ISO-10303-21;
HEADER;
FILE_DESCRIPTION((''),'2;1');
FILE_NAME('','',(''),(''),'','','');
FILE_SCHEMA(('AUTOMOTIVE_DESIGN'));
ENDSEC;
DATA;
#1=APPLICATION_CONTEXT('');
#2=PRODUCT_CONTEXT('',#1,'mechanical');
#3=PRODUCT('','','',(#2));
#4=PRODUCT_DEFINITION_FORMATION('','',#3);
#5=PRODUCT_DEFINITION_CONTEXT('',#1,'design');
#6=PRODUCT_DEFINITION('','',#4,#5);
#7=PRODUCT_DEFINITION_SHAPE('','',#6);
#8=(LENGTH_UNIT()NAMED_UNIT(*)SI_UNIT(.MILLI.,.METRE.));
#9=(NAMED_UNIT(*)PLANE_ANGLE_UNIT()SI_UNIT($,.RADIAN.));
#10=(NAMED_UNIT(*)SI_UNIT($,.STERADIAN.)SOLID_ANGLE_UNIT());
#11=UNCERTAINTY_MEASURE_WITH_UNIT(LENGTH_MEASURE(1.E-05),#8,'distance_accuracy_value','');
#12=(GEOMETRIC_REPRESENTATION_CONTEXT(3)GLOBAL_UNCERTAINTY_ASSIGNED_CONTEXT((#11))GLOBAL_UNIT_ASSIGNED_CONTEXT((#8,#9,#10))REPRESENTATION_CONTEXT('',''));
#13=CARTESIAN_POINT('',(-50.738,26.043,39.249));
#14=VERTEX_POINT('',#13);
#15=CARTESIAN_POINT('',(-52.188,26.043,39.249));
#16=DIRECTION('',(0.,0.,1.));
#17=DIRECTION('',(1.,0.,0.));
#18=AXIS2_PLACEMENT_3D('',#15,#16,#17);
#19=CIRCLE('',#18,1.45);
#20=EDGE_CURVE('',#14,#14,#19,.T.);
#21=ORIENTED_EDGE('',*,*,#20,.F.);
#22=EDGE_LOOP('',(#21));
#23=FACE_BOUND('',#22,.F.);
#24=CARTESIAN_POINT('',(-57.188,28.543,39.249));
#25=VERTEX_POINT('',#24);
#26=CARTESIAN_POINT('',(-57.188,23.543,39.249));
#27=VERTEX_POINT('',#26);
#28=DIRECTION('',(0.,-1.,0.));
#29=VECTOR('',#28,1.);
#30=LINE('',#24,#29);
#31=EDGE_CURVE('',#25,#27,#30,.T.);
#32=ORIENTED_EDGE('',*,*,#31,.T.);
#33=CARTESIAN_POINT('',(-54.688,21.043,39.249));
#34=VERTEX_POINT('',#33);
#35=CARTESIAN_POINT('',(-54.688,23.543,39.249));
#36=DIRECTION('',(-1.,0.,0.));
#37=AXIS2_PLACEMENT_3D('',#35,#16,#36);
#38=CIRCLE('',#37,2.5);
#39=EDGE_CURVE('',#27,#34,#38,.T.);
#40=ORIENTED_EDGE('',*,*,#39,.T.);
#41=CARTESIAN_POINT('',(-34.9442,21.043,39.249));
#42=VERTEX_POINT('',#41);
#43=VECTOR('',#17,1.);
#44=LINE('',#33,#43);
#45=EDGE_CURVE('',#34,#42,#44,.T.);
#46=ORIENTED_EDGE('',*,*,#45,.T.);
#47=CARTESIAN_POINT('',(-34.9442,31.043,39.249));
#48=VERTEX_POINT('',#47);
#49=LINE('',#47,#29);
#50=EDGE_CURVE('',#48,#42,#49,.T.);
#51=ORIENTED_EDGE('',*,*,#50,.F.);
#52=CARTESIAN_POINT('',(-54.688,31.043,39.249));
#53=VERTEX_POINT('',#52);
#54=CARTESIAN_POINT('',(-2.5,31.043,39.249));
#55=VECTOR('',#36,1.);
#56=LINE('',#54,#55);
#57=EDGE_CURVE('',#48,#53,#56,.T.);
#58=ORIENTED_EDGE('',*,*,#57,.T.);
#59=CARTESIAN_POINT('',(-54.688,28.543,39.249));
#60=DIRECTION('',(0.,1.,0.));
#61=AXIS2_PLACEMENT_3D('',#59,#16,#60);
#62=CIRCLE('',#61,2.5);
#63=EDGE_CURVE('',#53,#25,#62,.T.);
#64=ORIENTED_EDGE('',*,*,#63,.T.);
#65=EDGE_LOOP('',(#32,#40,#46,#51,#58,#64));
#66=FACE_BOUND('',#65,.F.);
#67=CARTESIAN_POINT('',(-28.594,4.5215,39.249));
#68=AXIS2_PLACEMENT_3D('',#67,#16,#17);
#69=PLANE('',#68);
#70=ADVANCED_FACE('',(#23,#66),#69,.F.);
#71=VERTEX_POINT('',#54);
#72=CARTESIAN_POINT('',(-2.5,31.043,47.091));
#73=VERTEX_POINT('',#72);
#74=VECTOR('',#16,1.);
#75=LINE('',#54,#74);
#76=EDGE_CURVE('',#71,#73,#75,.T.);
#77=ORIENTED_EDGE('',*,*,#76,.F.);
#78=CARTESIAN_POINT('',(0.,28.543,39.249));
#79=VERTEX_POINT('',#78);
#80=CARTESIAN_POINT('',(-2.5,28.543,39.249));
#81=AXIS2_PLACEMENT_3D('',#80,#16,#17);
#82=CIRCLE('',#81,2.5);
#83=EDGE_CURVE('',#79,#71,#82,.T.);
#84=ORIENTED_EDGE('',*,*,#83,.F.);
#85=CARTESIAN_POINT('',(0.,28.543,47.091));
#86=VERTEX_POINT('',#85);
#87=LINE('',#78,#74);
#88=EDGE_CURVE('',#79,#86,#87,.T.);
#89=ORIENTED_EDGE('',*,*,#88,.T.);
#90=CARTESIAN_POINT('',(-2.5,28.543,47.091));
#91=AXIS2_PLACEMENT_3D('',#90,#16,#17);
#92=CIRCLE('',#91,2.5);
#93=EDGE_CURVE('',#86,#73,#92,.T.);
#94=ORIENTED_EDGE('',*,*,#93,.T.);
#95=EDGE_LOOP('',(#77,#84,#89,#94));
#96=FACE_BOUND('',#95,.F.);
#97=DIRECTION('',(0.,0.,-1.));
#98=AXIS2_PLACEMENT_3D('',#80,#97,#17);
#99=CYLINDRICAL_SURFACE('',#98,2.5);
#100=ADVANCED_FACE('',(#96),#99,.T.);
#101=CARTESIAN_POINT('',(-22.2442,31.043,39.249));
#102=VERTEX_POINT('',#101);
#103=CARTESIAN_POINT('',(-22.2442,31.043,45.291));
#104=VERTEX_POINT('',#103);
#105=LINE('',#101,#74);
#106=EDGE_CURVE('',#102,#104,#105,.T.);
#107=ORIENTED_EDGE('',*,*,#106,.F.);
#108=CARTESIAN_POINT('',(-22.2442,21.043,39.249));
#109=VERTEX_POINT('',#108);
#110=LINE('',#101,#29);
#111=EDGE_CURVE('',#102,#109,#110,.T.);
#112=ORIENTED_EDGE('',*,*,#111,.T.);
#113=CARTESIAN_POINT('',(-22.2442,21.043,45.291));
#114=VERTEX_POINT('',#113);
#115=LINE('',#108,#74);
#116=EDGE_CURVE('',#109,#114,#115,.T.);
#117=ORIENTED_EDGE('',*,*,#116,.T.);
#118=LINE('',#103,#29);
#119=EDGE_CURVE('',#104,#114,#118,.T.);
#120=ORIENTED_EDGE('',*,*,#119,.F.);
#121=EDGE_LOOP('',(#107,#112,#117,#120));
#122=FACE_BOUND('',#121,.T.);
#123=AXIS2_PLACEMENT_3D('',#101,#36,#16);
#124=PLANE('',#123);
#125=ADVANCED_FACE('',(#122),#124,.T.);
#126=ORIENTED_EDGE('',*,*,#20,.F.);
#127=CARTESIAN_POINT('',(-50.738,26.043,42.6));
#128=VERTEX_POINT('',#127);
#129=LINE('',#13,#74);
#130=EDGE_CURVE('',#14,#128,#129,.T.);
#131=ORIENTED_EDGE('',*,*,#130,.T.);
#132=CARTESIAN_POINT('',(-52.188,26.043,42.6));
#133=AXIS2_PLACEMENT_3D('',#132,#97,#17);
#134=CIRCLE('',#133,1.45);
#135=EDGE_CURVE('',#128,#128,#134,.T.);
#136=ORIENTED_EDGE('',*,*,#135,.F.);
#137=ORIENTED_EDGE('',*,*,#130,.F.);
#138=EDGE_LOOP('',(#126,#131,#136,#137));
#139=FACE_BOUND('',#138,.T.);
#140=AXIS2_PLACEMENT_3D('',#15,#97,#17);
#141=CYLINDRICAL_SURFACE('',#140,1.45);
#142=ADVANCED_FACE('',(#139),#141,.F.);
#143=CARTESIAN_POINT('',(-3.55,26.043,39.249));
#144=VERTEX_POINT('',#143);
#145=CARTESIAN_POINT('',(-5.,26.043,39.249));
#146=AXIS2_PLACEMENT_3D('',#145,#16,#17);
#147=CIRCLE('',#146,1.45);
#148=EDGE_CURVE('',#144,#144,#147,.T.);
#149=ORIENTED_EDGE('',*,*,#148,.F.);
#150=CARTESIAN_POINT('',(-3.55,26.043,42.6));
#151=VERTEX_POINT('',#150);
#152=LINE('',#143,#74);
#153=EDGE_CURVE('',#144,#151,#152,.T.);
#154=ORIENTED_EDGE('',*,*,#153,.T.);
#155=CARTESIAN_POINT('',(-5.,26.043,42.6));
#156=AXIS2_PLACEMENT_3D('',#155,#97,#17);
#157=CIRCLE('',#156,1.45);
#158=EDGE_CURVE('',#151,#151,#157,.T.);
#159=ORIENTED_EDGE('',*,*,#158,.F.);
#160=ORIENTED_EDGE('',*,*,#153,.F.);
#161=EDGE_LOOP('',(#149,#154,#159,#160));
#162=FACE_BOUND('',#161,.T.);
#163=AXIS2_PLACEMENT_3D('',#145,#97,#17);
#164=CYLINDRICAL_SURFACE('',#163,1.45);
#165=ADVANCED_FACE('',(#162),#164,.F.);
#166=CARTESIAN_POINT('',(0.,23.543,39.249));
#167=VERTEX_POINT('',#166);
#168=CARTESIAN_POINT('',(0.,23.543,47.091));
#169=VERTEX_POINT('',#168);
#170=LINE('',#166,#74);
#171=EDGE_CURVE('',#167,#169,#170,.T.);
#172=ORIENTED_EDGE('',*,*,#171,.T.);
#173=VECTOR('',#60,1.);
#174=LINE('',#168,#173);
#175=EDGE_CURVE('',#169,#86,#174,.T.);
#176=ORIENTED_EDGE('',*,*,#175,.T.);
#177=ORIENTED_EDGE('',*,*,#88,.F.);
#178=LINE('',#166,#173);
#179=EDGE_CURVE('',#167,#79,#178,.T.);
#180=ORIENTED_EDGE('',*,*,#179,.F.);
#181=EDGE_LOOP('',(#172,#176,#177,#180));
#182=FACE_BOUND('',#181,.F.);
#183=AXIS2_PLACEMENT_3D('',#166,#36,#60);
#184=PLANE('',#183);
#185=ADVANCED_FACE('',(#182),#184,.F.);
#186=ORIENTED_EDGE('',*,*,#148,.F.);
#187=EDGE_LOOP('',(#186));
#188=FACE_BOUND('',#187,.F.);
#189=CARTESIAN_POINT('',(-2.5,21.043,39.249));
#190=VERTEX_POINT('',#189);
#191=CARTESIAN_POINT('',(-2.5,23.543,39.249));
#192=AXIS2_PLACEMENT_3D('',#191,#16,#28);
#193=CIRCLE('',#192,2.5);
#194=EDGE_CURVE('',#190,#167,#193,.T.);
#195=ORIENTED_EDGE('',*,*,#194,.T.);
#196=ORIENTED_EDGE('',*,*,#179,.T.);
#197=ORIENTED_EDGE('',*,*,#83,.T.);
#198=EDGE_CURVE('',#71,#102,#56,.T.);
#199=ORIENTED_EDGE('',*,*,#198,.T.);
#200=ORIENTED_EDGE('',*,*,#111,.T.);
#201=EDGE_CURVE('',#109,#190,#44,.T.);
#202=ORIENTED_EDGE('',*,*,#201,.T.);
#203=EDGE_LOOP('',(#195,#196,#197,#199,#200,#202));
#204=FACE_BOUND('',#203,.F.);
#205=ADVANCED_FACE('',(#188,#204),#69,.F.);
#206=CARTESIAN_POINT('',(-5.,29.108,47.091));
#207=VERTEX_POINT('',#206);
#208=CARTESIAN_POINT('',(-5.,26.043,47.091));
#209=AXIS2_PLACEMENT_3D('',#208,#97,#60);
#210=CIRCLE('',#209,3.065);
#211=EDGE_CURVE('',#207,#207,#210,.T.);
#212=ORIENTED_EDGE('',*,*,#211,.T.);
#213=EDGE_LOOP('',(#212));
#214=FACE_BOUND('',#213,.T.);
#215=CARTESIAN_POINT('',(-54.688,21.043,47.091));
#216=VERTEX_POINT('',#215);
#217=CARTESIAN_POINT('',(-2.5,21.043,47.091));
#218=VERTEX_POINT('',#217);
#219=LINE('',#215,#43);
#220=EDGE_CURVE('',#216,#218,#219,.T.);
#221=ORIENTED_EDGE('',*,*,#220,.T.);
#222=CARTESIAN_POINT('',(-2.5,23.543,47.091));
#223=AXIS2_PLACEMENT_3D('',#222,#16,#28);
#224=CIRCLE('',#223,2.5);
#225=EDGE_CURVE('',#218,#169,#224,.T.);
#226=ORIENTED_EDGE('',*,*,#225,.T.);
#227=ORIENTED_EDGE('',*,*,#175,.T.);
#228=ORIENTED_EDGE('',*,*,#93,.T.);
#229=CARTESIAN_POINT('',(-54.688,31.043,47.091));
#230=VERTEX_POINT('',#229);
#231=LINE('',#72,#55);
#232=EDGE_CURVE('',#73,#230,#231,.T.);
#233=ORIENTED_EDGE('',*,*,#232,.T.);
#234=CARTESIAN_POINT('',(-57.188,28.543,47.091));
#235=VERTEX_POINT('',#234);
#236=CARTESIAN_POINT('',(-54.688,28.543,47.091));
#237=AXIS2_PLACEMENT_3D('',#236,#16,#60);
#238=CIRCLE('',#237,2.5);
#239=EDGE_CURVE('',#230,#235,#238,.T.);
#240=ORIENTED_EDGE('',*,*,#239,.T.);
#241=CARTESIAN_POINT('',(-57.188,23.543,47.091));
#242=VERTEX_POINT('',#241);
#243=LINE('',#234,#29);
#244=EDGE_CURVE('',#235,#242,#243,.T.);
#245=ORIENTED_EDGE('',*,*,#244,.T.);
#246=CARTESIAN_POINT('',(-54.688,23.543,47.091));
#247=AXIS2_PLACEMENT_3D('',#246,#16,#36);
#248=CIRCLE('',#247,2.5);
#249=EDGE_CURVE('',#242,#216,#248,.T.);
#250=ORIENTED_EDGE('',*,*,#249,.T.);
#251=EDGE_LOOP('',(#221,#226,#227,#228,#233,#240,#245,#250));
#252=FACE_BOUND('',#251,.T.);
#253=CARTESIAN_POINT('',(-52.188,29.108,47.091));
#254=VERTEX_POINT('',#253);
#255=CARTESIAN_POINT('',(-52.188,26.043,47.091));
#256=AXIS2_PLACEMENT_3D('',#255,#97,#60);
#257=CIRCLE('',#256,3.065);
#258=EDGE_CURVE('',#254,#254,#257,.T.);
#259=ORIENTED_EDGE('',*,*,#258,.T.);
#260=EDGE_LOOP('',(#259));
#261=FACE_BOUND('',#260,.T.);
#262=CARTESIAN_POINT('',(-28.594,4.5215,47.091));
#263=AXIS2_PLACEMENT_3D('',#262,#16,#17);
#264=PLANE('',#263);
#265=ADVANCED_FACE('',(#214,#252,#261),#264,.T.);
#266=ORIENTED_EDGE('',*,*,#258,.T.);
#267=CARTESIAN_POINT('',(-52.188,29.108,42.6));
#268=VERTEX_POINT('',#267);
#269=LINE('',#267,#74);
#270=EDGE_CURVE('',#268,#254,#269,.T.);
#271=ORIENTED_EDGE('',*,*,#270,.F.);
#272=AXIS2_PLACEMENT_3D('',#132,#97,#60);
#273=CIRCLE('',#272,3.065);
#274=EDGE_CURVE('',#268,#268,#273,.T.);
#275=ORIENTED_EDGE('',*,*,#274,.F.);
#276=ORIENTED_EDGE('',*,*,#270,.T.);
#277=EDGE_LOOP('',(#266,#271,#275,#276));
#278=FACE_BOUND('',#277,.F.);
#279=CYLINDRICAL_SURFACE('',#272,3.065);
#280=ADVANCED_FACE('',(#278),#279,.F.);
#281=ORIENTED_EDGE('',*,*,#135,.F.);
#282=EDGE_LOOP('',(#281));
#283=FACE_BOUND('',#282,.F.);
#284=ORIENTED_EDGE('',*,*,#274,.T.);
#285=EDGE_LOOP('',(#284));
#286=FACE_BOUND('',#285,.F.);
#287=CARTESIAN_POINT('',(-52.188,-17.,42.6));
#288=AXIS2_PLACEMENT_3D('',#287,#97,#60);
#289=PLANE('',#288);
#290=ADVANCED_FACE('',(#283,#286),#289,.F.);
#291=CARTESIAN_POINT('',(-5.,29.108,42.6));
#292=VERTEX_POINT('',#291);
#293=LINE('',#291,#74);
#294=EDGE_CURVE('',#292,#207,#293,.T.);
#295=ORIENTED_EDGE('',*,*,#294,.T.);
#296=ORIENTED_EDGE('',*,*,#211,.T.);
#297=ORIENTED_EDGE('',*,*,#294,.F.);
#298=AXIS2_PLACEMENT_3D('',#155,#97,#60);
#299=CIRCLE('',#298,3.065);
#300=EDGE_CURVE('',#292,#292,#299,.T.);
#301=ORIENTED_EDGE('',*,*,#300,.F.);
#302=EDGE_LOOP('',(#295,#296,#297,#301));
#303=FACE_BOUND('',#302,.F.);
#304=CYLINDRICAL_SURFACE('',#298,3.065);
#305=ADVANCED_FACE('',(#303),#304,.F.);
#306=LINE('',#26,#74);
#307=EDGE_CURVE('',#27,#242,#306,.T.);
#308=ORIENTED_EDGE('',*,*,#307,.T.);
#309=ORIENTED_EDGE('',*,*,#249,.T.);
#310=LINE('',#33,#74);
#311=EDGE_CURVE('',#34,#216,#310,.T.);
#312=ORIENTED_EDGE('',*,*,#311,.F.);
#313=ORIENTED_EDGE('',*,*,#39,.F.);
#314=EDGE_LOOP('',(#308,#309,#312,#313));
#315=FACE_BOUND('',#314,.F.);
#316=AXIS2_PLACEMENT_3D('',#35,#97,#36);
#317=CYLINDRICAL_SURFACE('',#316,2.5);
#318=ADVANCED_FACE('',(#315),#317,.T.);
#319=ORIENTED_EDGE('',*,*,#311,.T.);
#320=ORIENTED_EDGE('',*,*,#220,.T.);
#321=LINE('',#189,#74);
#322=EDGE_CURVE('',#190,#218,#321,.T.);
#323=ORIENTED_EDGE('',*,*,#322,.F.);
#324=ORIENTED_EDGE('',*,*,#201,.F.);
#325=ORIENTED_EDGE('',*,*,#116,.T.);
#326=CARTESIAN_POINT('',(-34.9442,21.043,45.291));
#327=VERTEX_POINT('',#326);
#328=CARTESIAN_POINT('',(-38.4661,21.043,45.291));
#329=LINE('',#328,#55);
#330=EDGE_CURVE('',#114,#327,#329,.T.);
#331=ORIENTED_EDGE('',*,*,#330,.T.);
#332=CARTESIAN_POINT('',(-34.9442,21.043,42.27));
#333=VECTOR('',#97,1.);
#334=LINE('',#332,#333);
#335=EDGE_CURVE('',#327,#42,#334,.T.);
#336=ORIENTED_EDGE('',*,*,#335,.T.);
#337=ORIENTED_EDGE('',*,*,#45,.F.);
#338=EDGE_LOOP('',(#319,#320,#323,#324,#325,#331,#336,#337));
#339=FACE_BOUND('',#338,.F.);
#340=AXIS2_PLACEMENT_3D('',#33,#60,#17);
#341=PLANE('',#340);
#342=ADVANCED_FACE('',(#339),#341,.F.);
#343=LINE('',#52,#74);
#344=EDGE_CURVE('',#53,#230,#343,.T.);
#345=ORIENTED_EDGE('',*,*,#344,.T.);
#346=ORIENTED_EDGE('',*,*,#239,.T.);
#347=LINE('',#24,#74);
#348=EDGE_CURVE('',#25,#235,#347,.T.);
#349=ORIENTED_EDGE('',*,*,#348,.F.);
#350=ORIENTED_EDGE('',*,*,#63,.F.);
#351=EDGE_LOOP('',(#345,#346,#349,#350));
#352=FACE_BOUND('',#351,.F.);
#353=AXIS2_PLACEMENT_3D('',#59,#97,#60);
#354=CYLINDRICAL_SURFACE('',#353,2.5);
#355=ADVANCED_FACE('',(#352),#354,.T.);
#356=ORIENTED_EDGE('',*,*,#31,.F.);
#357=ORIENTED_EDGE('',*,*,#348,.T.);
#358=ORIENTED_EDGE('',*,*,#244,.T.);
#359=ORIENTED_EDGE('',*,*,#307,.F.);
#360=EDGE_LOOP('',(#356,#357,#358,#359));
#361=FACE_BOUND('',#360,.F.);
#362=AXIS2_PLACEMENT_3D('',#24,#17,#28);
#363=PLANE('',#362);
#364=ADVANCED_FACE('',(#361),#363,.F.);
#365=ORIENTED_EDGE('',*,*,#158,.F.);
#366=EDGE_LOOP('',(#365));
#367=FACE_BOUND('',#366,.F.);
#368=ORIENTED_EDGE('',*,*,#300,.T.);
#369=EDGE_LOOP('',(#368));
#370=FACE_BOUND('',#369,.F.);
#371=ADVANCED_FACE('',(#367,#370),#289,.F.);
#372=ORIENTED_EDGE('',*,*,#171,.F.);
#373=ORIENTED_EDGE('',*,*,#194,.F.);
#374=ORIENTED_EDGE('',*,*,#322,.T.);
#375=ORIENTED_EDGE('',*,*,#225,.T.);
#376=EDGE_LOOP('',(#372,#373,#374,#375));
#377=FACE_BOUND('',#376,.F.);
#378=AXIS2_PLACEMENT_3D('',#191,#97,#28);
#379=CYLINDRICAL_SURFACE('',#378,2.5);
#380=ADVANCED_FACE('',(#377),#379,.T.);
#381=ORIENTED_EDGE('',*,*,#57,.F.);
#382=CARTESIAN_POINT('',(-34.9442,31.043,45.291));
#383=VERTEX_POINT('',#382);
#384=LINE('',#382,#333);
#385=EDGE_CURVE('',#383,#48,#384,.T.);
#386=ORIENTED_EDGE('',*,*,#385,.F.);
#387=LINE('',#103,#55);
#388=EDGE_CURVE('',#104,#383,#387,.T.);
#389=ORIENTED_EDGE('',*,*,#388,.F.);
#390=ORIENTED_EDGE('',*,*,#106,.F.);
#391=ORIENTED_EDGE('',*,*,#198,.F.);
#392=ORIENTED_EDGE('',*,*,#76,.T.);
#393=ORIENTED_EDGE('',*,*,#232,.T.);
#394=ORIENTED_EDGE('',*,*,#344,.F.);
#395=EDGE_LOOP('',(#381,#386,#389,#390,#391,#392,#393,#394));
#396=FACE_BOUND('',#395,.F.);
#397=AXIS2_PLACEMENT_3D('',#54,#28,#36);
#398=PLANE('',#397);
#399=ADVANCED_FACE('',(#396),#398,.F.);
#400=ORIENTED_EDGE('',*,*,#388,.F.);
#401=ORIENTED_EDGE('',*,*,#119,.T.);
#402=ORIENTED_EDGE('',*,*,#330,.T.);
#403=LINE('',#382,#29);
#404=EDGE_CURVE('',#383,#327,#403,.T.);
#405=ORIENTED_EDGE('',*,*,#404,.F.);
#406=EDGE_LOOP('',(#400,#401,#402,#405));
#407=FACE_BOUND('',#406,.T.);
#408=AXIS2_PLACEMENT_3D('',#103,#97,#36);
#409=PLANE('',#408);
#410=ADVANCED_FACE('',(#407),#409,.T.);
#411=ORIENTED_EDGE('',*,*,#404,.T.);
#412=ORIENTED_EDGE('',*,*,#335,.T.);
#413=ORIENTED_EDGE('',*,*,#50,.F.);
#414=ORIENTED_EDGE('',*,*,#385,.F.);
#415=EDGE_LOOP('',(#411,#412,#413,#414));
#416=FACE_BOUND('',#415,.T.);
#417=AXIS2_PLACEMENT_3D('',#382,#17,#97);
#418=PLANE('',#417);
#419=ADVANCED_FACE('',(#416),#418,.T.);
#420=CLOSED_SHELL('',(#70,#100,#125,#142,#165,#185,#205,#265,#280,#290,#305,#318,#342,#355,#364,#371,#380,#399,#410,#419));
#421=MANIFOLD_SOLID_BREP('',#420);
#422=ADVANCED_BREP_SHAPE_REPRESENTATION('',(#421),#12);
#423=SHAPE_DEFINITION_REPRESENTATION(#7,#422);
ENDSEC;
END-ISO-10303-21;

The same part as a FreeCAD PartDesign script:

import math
import FreeCAD as App
import Part
import Sketcher

V = App.Vector
Q = App.Units.Quantity

doc = App.newDocument("Part")
body = doc.addObject("PartDesign::Body", "Body")

sketch1 = body.newObject("Sketcher::SketchObject", "Sketch")
sketch1.AttachmentSupport = (doc.getObject("XY_Plane"), [""])
sketch1.MapMode = "FlatFace"
sketch1.AttachmentOffset = App.Placement(V(0, 0, 39.249), App.Rotation())
sketch1.addGeometry([
    Part.LineSegment(V(-2.5, 31, 0), V(-54.7, 31, 0)),
    Part.ArcOfCircle(Part.Circle(V(-54.7, 28.5, 0), V(0, 0, 1), 2.5), math.radians(90), math.radians(180)),
    Part.LineSegment(V(-57.2, 28.5, 0), V(-57.2, 23.5, 0)),
    Part.ArcOfCircle(Part.Circle(V(-54.7, 23.5, 0), V(0, 0, 1), 2.5), math.radians(180), math.radians(270)),
    Part.LineSegment(V(-54.7, 21, 0), V(-2.5, 21, 0)),
    Part.ArcOfCircle(Part.Circle(V(-2.5, 23.5, 0), V(0, 0, 1), 2.5), math.radians(-90), math.radians(0)),
    Part.LineSegment(V(0, 23.5, 0), V(0, 28.5, 0)),
    Part.ArcOfCircle(Part.Circle(V(-2.5, 28.5, 0), V(0, 0, 1), 2.5), math.radians(0), math.radians(90)),
    Part.Circle(V(-52.2, 26, 0), V(0, 0, 1), 1.4),
    Part.Circle(V(-5, 26, 0), V(0, 0, 1), 1.4),
], False)
sketch1.addConstraint([
    Sketcher.Constraint("Tangent", 0, 2, 1, 1),
    Sketcher.Constraint("Tangent", 1, 2, 2, 1),
    Sketcher.Constraint("Tangent", 2, 2, 3, 1),
    Sketcher.Constraint("Tangent", 3, 2, 4, 1),
    Sketcher.Constraint("Tangent", 4, 2, 5, 1),
    Sketcher.Constraint("Tangent", 5, 2, 6, 1),
    Sketcher.Constraint("Tangent", 6, 2, 7, 1),
    Sketcher.Constraint("Tangent", 7, 2, 0, 1),
    Sketcher.Constraint("Horizontal", 0),
    Sketcher.Constraint("Vertical", 2),
    Sketcher.Constraint("Horizontal", 4),
    Sketcher.Constraint("Vertical", 6),
    Sketcher.Constraint("Equal", 1, 3),
    Sketcher.Constraint("Equal", 3, 5),
    Sketcher.Constraint("Equal", 5, 7),
    Sketcher.Constraint("Equal", 8, 9),
    Sketcher.Constraint("PointOnObject", 5, 2, -2),
    Sketcher.Constraint("Horizontal", 8, 3, 9, 3),
    Sketcher.Constraint("Diameter", 8, Q("2.9 mm")),
    Sketcher.Constraint("Radius", 1, Q("2.5 mm")),
    Sketcher.Constraint("DistanceY", 2, 2, 2, 1, Q("5 mm")),
    Sketcher.Constraint("DistanceX", 9, 3, -1, 1, Q("5 mm")),
    Sketcher.Constraint("DistanceY", 8, 3, 0, 2, Q("5 mm")),
    Sketcher.Constraint("DistanceX", 1, 2, 8, 3, Q("5 mm")),
    Sketcher.Constraint("DistanceX", 0, 2, 0, 1, Q("52.188 mm")),
    Sketcher.Constraint("DistanceY", -1, 1, 1, 3, Q("28.543 mm")),
])
pad1 = body.newObject("PartDesign::Pad", "Pad")
pad1.Profile = sketch1
pad1.Length = 7.842

sketch2 = body.newObject("Sketcher::SketchObject", "Sketch001")
sketch2.AttachmentSupport = (doc.getObject("XZ_Plane"), [""])
sketch2.MapMode = "FlatFace"
sketch2.AttachmentOffset = App.Placement(V(0, 0, -31.043), App.Rotation())
sketch2.addGeometry([
    Part.LineSegment(V(-22, 45, 0), V(-22, 39, 0)),
    Part.LineSegment(V(-22, 39, 0), V(-35, 39, 0)),
    Part.LineSegment(V(-35, 39, 0), V(-35, 45, 0)),
    Part.LineSegment(V(-35, 45, 0), V(-22, 45, 0)),
], False)
sketch2.addConstraint([
    Sketcher.Constraint("Coincident", 0, 2, 1, 1),
    Sketcher.Constraint("Coincident", 1, 2, 2, 1),
    Sketcher.Constraint("Coincident", 2, 2, 3, 1),
    Sketcher.Constraint("Coincident", 3, 2, 0, 1),
    Sketcher.Constraint("Vertical", 0),
    Sketcher.Constraint("Horizontal", 1),
    Sketcher.Constraint("Vertical", 2),
    Sketcher.Constraint("Horizontal", 3),
    Sketcher.Constraint("DistanceX", 1, 2, 1, 1, Q("12.7 mm")),
    Sketcher.Constraint("DistanceY", 0, 2, 0, 1, Q("6.042 mm")),
    Sketcher.Constraint("DistanceY", -1, 1, 0, 2, Q("39.249 mm")),
    Sketcher.Constraint("DistanceX", 0, 2, -1, 1, Q("22.2442 mm")),
])
pocket1 = body.newObject("PartDesign::Pocket", "Pocket")
pocket1.Profile = sketch2
pocket1.Length = 12.908
pocket1.Reversed = True

sketch3 = body.newObject("Sketcher::SketchObject", "Sketch002")
sketch3.AttachmentSupport = (doc.getObject("XY_Plane"), [""])
sketch3.MapMode = "FlatFace"
sketch3.AttachmentOffset = App.Placement(V(0, 0, 42.6), App.Rotation())
sketch3.addGeometry([
    Part.Circle(V(-5, 26, 0), V(0, 0, 1), 3.1),
    Part.Circle(V(-52.2, 26, 0), V(0, 0, 1), 3.1),
], False)
sketch3.addConstraint([
    Sketcher.Constraint("Equal", 0, 1),
    Sketcher.Constraint("Horizontal", 0, 3, 1, 3),
    Sketcher.Constraint("Diameter", 0, Q("6.13 mm")),
    Sketcher.Constraint("DistanceX", 0, 3, -1, 1, Q("5 mm")),
    Sketcher.Constraint("DistanceY", -1, 1, 0, 3, Q("26.043 mm")),
    Sketcher.Constraint("DistanceX", 1, 3, -1, 1, Q("52.188 mm")),
])
pocket2 = body.newObject("PartDesign::Pocket", "Pocket001")
pocket2.Profile = sketch3
pocket2.Length = 12.908
pocket2.Reversed = True

doc.recompute()
